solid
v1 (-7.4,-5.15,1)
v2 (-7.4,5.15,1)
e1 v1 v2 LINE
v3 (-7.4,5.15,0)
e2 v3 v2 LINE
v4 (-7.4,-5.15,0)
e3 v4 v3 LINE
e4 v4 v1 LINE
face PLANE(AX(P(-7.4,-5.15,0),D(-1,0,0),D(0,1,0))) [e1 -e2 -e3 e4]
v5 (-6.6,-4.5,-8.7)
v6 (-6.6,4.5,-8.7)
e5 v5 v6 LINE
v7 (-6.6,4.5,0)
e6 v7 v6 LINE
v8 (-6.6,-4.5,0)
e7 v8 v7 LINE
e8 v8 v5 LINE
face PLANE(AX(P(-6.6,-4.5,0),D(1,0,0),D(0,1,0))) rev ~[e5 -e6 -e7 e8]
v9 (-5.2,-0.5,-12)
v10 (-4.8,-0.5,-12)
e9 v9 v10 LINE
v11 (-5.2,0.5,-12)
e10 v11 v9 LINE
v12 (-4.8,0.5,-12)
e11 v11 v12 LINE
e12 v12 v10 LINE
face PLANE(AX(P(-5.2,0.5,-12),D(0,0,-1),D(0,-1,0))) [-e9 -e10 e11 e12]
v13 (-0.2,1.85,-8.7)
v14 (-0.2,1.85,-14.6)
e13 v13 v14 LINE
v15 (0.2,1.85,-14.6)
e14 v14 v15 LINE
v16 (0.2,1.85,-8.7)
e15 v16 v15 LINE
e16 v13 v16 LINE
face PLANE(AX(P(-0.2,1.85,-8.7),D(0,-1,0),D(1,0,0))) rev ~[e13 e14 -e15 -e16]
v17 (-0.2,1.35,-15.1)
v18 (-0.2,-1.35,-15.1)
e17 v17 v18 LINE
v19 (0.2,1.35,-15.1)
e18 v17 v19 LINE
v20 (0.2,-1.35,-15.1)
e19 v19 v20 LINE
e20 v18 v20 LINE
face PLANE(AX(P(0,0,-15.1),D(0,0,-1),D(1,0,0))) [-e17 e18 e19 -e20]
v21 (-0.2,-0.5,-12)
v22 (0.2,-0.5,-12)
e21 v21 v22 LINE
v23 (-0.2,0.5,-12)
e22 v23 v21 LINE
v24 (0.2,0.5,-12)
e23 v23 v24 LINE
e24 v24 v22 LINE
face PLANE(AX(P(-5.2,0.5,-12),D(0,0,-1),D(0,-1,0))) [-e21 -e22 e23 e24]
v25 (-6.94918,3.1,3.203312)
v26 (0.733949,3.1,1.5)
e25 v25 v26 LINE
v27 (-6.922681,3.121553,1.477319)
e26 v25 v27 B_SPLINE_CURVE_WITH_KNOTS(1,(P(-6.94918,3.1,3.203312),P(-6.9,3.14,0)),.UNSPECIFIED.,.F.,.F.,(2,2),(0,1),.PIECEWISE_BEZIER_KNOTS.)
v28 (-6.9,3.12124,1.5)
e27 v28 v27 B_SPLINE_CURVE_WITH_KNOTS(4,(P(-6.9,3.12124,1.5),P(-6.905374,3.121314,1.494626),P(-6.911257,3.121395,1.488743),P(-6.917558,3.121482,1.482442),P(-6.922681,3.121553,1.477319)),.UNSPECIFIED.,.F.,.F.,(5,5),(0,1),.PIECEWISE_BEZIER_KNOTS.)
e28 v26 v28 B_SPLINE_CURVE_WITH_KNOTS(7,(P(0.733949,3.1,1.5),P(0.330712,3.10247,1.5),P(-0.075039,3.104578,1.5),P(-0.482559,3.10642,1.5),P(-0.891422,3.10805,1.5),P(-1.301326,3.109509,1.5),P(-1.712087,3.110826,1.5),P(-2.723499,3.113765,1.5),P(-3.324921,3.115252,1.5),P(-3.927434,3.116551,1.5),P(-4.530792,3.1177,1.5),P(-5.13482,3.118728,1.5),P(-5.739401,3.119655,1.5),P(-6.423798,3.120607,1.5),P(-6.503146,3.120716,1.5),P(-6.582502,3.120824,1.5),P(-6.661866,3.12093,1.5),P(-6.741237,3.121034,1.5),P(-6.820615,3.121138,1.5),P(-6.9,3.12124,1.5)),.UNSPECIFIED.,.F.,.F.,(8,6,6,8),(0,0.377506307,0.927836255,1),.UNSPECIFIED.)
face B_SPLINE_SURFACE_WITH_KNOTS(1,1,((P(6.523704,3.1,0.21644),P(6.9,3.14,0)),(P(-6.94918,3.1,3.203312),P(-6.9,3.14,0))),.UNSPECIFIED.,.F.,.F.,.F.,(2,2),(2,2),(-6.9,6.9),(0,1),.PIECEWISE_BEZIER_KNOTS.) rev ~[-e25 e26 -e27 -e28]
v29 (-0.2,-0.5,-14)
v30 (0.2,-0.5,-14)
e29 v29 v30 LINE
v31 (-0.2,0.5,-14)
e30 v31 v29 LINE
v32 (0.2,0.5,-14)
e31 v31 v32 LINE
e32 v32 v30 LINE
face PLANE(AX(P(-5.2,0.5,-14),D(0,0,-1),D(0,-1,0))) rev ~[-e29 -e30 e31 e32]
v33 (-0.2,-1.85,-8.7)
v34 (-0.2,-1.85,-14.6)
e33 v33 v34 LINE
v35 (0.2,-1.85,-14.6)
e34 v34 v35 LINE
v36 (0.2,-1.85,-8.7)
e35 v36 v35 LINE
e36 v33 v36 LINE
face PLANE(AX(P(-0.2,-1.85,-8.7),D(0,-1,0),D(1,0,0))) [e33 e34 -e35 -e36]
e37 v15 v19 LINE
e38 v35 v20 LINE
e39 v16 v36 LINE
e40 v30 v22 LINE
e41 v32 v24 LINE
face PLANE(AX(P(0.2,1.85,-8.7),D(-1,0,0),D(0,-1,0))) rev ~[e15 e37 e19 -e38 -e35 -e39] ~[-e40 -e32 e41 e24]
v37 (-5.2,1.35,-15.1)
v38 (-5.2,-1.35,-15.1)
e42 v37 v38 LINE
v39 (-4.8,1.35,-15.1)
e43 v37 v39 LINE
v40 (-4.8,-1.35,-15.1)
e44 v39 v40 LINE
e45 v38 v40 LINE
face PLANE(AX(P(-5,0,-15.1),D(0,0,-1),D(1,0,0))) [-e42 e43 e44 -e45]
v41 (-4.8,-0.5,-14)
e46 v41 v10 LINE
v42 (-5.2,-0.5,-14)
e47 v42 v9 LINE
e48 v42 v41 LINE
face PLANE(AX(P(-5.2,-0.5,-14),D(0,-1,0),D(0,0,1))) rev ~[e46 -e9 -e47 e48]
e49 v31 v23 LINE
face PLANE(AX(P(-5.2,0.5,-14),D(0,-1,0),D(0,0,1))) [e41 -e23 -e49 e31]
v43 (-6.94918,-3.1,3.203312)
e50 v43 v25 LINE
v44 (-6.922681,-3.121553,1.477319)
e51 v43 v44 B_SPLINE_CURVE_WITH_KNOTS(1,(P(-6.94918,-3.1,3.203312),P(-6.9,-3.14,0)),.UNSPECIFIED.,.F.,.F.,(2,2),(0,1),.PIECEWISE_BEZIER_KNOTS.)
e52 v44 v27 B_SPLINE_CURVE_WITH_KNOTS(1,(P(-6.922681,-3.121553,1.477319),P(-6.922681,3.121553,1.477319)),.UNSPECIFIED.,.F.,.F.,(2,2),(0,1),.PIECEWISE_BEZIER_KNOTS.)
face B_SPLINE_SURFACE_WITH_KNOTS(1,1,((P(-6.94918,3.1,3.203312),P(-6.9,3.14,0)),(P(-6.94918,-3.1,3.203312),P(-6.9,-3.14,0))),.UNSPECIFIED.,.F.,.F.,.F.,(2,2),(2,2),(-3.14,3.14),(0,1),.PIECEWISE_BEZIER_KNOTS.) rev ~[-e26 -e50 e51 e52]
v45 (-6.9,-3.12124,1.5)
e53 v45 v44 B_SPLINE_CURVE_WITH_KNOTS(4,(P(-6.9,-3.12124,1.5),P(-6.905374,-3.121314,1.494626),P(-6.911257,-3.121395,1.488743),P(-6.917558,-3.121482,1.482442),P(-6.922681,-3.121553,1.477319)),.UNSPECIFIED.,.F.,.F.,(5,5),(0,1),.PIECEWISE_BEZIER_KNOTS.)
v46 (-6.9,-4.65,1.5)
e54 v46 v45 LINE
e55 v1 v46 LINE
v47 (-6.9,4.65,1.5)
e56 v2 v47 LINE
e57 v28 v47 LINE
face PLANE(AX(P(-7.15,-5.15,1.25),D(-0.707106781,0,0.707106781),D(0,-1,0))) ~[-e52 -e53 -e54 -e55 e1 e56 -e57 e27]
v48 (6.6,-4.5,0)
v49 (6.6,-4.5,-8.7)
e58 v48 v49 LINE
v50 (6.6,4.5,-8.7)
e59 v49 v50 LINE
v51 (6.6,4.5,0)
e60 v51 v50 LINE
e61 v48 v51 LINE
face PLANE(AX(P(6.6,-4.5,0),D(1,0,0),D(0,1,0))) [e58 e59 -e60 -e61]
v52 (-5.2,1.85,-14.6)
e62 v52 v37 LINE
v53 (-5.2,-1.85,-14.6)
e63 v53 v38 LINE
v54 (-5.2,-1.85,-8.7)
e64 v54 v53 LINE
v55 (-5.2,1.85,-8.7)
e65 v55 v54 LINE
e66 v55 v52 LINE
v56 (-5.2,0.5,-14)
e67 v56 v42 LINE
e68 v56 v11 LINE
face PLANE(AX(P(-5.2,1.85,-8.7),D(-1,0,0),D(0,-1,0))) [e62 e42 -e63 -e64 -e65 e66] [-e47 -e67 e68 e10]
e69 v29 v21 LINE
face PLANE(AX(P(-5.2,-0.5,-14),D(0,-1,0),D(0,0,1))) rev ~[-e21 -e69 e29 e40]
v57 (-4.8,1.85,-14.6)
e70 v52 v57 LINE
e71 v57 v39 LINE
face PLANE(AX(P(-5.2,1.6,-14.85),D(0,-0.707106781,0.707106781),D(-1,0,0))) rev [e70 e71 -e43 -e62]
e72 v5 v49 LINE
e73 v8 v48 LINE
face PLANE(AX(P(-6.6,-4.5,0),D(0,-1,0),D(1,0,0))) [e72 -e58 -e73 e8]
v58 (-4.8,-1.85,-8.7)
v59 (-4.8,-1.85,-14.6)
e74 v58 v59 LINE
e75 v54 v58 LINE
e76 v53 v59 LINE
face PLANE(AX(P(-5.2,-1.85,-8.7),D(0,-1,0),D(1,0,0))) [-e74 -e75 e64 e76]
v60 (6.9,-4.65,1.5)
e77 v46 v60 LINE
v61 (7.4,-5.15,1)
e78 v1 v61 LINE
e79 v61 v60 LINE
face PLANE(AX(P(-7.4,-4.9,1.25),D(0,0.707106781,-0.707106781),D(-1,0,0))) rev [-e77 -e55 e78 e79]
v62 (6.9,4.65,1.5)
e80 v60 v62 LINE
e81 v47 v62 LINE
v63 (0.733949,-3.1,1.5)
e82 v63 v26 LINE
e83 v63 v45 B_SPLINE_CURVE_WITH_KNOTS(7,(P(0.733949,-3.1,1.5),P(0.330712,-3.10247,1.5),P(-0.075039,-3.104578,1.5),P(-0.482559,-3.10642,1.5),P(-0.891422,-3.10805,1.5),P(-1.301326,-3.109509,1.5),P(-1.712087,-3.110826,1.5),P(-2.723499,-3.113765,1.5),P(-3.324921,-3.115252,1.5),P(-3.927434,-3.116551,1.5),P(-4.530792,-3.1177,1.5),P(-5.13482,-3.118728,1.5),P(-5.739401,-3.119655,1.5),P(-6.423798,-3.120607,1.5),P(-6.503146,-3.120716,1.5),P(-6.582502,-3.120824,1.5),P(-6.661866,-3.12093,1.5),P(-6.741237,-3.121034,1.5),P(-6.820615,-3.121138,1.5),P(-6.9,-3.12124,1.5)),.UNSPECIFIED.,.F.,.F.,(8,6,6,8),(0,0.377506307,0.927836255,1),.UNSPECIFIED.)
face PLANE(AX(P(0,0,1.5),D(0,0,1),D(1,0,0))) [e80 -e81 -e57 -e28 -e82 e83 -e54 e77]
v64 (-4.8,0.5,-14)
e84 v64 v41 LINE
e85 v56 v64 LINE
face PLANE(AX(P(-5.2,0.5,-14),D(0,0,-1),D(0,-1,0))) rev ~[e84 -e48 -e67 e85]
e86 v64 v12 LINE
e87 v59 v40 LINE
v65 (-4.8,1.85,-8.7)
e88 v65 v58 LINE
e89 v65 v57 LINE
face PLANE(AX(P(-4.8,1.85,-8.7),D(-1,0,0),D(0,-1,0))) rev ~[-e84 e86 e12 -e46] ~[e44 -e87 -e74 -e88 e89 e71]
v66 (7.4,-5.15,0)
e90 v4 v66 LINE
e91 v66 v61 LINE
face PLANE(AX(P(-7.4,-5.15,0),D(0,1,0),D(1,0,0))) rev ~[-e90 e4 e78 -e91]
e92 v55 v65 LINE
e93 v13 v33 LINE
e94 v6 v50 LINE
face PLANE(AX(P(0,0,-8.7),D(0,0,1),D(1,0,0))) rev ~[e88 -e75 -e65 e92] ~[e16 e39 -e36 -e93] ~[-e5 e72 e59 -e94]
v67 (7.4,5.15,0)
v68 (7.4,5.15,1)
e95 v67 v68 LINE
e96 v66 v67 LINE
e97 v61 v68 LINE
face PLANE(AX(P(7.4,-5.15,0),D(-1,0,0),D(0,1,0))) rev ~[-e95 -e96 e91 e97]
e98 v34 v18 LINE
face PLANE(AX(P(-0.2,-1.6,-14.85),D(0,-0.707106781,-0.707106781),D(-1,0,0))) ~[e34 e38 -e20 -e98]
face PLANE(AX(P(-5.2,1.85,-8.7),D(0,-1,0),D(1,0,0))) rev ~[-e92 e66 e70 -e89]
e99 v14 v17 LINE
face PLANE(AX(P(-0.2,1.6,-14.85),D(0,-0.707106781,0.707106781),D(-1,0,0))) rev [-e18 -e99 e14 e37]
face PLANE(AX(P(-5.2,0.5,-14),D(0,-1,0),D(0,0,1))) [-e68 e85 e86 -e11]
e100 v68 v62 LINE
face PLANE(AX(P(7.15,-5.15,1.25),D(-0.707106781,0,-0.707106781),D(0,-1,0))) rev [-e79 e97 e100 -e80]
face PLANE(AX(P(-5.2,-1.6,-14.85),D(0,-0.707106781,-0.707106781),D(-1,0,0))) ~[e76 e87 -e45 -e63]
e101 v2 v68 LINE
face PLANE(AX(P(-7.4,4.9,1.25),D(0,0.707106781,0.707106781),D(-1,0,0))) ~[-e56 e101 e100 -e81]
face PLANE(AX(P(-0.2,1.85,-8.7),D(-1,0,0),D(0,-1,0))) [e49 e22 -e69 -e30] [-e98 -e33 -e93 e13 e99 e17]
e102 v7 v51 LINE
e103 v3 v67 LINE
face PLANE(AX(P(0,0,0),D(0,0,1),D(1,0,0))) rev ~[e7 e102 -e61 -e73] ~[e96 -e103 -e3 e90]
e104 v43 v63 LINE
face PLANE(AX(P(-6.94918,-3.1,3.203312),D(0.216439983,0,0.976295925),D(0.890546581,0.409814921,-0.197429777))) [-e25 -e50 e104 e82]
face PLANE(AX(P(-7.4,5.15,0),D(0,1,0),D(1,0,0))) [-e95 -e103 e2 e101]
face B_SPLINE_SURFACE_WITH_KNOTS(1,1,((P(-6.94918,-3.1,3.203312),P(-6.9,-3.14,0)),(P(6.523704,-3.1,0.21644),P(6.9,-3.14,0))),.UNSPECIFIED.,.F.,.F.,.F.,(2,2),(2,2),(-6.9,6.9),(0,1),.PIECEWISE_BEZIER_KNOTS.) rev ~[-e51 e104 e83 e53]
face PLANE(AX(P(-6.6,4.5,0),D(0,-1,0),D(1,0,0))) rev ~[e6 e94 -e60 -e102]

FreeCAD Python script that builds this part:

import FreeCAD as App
import Part
import Sketcher
Q = App.Units.Quantity


def edges_at(feature, points):
    """Names of the edges that pass closest to the given points."""
    edges = feature.Shape.Edges
    near = lambda p: min(range(len(edges)), key=lambda i: edges[i].distToShape(Part.Vertex(*p))[0])
    return sorted({f"Edge{near(p) + 1}" for p in points})


def add_polygon(sketch, points):
    """Adds a closed chain of lines whose ends are joined by coincident constraints."""
    first, n = sketch.GeometryCount, len(points)
    for a, b in zip(points, points[1:] + points[:1]):
        sketch.addGeometry(Part.LineSegment(App.Vector(*a, 0), App.Vector(*b, 0)), False)
    for i in range(n):
        sketch.addConstraint(Sketcher.Constraint("Coincident", first + i, 2, first + (i + 1) % n, 1))

doc = App.newDocument("Part")
body = doc.addObject("PartDesign::Body", "Body")

# Sketch on XY plane
sketch1 = doc.addObject("Sketcher::SketchObject", "Sketch")
body.addObject(sketch1)
sketch1.AttachmentSupport = (doc.XY_Plane, [""])
sketch1.MapMode = "FlatFace"
add_polygon(sketch1, [(-7, 5), (-7, -5), (7, -5), (7, 5)])  # lines 0-3
sketch1.addConstraint([
    Sketcher.Constraint("Vertical", 0),
    Sketcher.Constraint("Horizontal", 1),
    Sketcher.Constraint("Vertical", 2),
    Sketcher.Constraint("Horizontal", 3),
    Sketcher.Constraint("Symmetric", 0, 2, 2, 2, -1, 1),
    Sketcher.Constraint("DistanceX", 1, 1, 1, 2, Q("14.8 mm")),
    Sketcher.Constraint("DistanceY", 0, 2, 0, 1, Q("10.3 mm")),
])
pad1 = doc.addObject("PartDesign::Pad", "Pad")
body.addObject(pad1)
pad1.Profile = sketch1
pad1.Length = 1.5
doc.recompute()

chamfer = doc.addObject("PartDesign::Chamfer", "Chamfer")
body.addObject(chamfer)
chamfer.Base = (pad1, edges_at(pad1, [
    (0, 5.15, 1.5),
    (7.4, 0, 1.5),
    (0, -5.15, 1.5),
    (-7.4, 0, 1.5),
]))
chamfer.Size = 0.5

# Sketch on an angled plane
sketch2 = doc.addObject("Sketcher::SketchObject", "Sketch001")
body.addObject(sketch2)
sketch2.Placement = App.Placement(App.Vector(6.523704, 0, 0.21644), App.Rotation(App.Vector(0.976295925, 0, -0.216439983), App.Vector(0, 0.999999999, 0), App.Vector(0.216439983, 0, 0.976295925), "ZXY"))
add_polygon(sketch2, [(-14, 3), (-14, -3), (0, -3), (0, 3)])  # lines 0-3
sketch2.addConstraint([
    Sketcher.Constraint("Vertical", 0),
    Sketcher.Constraint("Horizontal", 1),
    Sketcher.Constraint("Vertical", 2),
    Sketcher.Constraint("Horizontal", 3),
    Sketcher.Constraint("Symmetric", 1, 2, 2, 2, -1, 1),
    Sketcher.Constraint("DistanceX", 1, 1, 1, 2, Q("13.8 mm")),
    Sketcher.Constraint("DistanceY", 0, 2, 0, 1, Q("6.2 mm")),
])

# Sketch on XY plane
sketch3 = doc.addObject("Sketcher::SketchObject", "Sketch002")
body.addObject(sketch3)
sketch3.AttachmentSupport = (doc.XY_Plane, [""])
sketch3.MapMode = "FlatFace"
add_polygon(sketch3, [(-7, 3), (-7, -3), (7, -3), (7, 3)])  # lines 0-3
sketch3.addConstraint([
    Sketcher.Constraint("Vertical", 0),
    Sketcher.Constraint("Horizontal", 1),
    Sketcher.Constraint("Vertical", 2),
    Sketcher.Constraint("Horizontal", 3),
    Sketcher.Constraint("Symmetric", 0, 2, 2, 2, -1, 1),
    Sketcher.Constraint("DistanceX", 1, 1, 1, 2, Q("13.8 mm")),
    Sketcher.Constraint("DistanceY", 0, 2, 0, 1, Q("6.28 mm")),
])

additiveloft = doc.addObject("PartDesign::AdditiveLoft", "AdditiveLoft")
body.addObject(additiveloft)
additiveloft.Profile = sketch2
additiveloft.Sections = [sketch3]

# Sketch on XY plane
sketch4 = doc.addObject("Sketcher::SketchObject", "Sketch003")
body.addObject(sketch4)
sketch4.AttachmentSupport = (doc.XY_Plane, [""])
sketch4.MapMode = "FlatFace"
add_polygon(sketch4, [(-7, 4), (-7, -4), (7, -4), (7, 4)])  # lines 0-3
sketch4.addConstraint([
    Sketcher.Constraint("Vertical", 0),
    Sketcher.Constraint("Horizontal", 1),
    Sketcher.Constraint("Vertical", 2),
    Sketcher.Constraint("Horizontal", 3),
    Sketcher.Constraint("Symmetric", 0, 2, 2, 2, -1, 1),
    Sketcher.Constraint("DistanceY", 0, 2, 0, 1, Q("9 mm")),
    Sketcher.Constraint("DistanceX", 1, 1, 1, 2, Q("13.2 mm")),
])
pad2 = doc.addObject("PartDesign::Pad", "Pad001")
body.addObject(pad2)
pad2.Profile = sketch4
pad2.Length = 8.7
pad2.Reversed = True

# Sketch on XY plane
sketch5 = doc.addObject("Sketcher::SketchObject", "Sketch004")
body.addObject(sketch5)
sketch5.AttachmentSupport = (doc.XY_Plane, [""])
sketch5.MapMode = "FlatFace"
sketch5.AttachmentOffset = App.Placement(App.Vector(0, 0, -8.7), App.Rotation())
add_polygon(sketch5, [(-5.2, -1.85), (-5.2, 1.85), (-4.8, 1.85), (-4.8, -1.85)])  # lines 0-3
add_polygon(sketch5, [(-0.2, -1.85), (-0.2, 1.85), (0.2, 1.85), (0.2, -1.85)])  # lines 4-7
sketch5.addConstraint([
    Sketcher.Constraint("Vertical", 0),
    Sketcher.Constraint("Horizontal", 1),
    Sketcher.Constraint("Vertical", 2),
    Sketcher.Constraint("Horizontal", 3),
    Sketcher.Constraint("Vertical", 4),
    Sketcher.Constraint("Horizontal", 5),
    Sketcher.Constraint("Vertical", 6),
    Sketcher.Constraint("Horizontal", 7),
    Sketcher.Constraint("Symmetric", 4, 2, 6, 2, -1, 1),
    Sketcher.Constraint("Horizontal", 1, 2, 4, 2),
    Sketcher.Constraint("Horizontal", 3, 2, 6, 2),
    Sketcher.Constraint("Equal", 3, 5),
    Sketcher.Constraint("DistanceX", 1, 1, 1, 2, Q("0.4 mm")),
    Sketcher.Constraint("DistanceY", 0, 1, 0, 2, Q("3.7 mm")),
    Sketcher.Constraint("DistanceX", 0, 2, 4, 2, Q("5 mm")),
])
pad3 = doc.addObject("PartDesign::Pad", "Pad002")
body.addObject(pad3)
pad3.Profile = sketch5
pad3.Length = 6.4
pad3.Reversed = True

# Sketch on YZ plane
sketch6 = doc.addObject("Sketcher::SketchObject", "Sketch005")
body.addObject(sketch6)
sketch6.AttachmentSupport = (doc.YZ_Plane, [""])
sketch6.MapMode = "FlatFace"
sketch6.AttachmentOffset = App.Placement(App.Vector(0, 0, -5.2), App.Rotation())
add_polygon(sketch6, [(0.5, -12), (0.5, -14), (-0.5, -14), (-0.5, -12)])  # lines 0-3
sketch6.addConstraint([
    Sketcher.Constraint("Vertical", 0),
    Sketcher.Constraint("Horizontal", 1),
    Sketcher.Constraint("Vertical", 2),
    Sketcher.Constraint("Horizontal", 3),
    Sketcher.Constraint("DistanceX", 1, 2, 1, 1, Q("1 mm")),
    Sketcher.Constraint("DistanceY", 0, 2, 0, 1, Q("2 mm")),
    Sketcher.Constraint("DistanceY", 0, 2, -1, 1, Q("14 mm")),
    Sketcher.Constraint("DistanceX", -1, 1, 0, 2, Q("0.5 mm")),
])
pocket1 = doc.addObject("PartDesign::Pocket", "Pocket")
body.addObject(pocket1)
pocket1.Profile = sketch6
pocket1.Type = "ThroughAll"
pocket1.Reversed = True
doc.recompute()

chamfer2 = doc.addObject("PartDesign::Chamfer", "Chamfer001")
body.addObject(chamfer2)
chamfer2.Base = (pocket1, edges_at(pocket1, [
    (-5, -1.85, -15.1),
    (0, -1.85, -15.1),
    (0, 1.85, -15.1),
    (-5, 1.85, -15.1),
]))
chamfer2.Size = 0.5

doc.recompute()
